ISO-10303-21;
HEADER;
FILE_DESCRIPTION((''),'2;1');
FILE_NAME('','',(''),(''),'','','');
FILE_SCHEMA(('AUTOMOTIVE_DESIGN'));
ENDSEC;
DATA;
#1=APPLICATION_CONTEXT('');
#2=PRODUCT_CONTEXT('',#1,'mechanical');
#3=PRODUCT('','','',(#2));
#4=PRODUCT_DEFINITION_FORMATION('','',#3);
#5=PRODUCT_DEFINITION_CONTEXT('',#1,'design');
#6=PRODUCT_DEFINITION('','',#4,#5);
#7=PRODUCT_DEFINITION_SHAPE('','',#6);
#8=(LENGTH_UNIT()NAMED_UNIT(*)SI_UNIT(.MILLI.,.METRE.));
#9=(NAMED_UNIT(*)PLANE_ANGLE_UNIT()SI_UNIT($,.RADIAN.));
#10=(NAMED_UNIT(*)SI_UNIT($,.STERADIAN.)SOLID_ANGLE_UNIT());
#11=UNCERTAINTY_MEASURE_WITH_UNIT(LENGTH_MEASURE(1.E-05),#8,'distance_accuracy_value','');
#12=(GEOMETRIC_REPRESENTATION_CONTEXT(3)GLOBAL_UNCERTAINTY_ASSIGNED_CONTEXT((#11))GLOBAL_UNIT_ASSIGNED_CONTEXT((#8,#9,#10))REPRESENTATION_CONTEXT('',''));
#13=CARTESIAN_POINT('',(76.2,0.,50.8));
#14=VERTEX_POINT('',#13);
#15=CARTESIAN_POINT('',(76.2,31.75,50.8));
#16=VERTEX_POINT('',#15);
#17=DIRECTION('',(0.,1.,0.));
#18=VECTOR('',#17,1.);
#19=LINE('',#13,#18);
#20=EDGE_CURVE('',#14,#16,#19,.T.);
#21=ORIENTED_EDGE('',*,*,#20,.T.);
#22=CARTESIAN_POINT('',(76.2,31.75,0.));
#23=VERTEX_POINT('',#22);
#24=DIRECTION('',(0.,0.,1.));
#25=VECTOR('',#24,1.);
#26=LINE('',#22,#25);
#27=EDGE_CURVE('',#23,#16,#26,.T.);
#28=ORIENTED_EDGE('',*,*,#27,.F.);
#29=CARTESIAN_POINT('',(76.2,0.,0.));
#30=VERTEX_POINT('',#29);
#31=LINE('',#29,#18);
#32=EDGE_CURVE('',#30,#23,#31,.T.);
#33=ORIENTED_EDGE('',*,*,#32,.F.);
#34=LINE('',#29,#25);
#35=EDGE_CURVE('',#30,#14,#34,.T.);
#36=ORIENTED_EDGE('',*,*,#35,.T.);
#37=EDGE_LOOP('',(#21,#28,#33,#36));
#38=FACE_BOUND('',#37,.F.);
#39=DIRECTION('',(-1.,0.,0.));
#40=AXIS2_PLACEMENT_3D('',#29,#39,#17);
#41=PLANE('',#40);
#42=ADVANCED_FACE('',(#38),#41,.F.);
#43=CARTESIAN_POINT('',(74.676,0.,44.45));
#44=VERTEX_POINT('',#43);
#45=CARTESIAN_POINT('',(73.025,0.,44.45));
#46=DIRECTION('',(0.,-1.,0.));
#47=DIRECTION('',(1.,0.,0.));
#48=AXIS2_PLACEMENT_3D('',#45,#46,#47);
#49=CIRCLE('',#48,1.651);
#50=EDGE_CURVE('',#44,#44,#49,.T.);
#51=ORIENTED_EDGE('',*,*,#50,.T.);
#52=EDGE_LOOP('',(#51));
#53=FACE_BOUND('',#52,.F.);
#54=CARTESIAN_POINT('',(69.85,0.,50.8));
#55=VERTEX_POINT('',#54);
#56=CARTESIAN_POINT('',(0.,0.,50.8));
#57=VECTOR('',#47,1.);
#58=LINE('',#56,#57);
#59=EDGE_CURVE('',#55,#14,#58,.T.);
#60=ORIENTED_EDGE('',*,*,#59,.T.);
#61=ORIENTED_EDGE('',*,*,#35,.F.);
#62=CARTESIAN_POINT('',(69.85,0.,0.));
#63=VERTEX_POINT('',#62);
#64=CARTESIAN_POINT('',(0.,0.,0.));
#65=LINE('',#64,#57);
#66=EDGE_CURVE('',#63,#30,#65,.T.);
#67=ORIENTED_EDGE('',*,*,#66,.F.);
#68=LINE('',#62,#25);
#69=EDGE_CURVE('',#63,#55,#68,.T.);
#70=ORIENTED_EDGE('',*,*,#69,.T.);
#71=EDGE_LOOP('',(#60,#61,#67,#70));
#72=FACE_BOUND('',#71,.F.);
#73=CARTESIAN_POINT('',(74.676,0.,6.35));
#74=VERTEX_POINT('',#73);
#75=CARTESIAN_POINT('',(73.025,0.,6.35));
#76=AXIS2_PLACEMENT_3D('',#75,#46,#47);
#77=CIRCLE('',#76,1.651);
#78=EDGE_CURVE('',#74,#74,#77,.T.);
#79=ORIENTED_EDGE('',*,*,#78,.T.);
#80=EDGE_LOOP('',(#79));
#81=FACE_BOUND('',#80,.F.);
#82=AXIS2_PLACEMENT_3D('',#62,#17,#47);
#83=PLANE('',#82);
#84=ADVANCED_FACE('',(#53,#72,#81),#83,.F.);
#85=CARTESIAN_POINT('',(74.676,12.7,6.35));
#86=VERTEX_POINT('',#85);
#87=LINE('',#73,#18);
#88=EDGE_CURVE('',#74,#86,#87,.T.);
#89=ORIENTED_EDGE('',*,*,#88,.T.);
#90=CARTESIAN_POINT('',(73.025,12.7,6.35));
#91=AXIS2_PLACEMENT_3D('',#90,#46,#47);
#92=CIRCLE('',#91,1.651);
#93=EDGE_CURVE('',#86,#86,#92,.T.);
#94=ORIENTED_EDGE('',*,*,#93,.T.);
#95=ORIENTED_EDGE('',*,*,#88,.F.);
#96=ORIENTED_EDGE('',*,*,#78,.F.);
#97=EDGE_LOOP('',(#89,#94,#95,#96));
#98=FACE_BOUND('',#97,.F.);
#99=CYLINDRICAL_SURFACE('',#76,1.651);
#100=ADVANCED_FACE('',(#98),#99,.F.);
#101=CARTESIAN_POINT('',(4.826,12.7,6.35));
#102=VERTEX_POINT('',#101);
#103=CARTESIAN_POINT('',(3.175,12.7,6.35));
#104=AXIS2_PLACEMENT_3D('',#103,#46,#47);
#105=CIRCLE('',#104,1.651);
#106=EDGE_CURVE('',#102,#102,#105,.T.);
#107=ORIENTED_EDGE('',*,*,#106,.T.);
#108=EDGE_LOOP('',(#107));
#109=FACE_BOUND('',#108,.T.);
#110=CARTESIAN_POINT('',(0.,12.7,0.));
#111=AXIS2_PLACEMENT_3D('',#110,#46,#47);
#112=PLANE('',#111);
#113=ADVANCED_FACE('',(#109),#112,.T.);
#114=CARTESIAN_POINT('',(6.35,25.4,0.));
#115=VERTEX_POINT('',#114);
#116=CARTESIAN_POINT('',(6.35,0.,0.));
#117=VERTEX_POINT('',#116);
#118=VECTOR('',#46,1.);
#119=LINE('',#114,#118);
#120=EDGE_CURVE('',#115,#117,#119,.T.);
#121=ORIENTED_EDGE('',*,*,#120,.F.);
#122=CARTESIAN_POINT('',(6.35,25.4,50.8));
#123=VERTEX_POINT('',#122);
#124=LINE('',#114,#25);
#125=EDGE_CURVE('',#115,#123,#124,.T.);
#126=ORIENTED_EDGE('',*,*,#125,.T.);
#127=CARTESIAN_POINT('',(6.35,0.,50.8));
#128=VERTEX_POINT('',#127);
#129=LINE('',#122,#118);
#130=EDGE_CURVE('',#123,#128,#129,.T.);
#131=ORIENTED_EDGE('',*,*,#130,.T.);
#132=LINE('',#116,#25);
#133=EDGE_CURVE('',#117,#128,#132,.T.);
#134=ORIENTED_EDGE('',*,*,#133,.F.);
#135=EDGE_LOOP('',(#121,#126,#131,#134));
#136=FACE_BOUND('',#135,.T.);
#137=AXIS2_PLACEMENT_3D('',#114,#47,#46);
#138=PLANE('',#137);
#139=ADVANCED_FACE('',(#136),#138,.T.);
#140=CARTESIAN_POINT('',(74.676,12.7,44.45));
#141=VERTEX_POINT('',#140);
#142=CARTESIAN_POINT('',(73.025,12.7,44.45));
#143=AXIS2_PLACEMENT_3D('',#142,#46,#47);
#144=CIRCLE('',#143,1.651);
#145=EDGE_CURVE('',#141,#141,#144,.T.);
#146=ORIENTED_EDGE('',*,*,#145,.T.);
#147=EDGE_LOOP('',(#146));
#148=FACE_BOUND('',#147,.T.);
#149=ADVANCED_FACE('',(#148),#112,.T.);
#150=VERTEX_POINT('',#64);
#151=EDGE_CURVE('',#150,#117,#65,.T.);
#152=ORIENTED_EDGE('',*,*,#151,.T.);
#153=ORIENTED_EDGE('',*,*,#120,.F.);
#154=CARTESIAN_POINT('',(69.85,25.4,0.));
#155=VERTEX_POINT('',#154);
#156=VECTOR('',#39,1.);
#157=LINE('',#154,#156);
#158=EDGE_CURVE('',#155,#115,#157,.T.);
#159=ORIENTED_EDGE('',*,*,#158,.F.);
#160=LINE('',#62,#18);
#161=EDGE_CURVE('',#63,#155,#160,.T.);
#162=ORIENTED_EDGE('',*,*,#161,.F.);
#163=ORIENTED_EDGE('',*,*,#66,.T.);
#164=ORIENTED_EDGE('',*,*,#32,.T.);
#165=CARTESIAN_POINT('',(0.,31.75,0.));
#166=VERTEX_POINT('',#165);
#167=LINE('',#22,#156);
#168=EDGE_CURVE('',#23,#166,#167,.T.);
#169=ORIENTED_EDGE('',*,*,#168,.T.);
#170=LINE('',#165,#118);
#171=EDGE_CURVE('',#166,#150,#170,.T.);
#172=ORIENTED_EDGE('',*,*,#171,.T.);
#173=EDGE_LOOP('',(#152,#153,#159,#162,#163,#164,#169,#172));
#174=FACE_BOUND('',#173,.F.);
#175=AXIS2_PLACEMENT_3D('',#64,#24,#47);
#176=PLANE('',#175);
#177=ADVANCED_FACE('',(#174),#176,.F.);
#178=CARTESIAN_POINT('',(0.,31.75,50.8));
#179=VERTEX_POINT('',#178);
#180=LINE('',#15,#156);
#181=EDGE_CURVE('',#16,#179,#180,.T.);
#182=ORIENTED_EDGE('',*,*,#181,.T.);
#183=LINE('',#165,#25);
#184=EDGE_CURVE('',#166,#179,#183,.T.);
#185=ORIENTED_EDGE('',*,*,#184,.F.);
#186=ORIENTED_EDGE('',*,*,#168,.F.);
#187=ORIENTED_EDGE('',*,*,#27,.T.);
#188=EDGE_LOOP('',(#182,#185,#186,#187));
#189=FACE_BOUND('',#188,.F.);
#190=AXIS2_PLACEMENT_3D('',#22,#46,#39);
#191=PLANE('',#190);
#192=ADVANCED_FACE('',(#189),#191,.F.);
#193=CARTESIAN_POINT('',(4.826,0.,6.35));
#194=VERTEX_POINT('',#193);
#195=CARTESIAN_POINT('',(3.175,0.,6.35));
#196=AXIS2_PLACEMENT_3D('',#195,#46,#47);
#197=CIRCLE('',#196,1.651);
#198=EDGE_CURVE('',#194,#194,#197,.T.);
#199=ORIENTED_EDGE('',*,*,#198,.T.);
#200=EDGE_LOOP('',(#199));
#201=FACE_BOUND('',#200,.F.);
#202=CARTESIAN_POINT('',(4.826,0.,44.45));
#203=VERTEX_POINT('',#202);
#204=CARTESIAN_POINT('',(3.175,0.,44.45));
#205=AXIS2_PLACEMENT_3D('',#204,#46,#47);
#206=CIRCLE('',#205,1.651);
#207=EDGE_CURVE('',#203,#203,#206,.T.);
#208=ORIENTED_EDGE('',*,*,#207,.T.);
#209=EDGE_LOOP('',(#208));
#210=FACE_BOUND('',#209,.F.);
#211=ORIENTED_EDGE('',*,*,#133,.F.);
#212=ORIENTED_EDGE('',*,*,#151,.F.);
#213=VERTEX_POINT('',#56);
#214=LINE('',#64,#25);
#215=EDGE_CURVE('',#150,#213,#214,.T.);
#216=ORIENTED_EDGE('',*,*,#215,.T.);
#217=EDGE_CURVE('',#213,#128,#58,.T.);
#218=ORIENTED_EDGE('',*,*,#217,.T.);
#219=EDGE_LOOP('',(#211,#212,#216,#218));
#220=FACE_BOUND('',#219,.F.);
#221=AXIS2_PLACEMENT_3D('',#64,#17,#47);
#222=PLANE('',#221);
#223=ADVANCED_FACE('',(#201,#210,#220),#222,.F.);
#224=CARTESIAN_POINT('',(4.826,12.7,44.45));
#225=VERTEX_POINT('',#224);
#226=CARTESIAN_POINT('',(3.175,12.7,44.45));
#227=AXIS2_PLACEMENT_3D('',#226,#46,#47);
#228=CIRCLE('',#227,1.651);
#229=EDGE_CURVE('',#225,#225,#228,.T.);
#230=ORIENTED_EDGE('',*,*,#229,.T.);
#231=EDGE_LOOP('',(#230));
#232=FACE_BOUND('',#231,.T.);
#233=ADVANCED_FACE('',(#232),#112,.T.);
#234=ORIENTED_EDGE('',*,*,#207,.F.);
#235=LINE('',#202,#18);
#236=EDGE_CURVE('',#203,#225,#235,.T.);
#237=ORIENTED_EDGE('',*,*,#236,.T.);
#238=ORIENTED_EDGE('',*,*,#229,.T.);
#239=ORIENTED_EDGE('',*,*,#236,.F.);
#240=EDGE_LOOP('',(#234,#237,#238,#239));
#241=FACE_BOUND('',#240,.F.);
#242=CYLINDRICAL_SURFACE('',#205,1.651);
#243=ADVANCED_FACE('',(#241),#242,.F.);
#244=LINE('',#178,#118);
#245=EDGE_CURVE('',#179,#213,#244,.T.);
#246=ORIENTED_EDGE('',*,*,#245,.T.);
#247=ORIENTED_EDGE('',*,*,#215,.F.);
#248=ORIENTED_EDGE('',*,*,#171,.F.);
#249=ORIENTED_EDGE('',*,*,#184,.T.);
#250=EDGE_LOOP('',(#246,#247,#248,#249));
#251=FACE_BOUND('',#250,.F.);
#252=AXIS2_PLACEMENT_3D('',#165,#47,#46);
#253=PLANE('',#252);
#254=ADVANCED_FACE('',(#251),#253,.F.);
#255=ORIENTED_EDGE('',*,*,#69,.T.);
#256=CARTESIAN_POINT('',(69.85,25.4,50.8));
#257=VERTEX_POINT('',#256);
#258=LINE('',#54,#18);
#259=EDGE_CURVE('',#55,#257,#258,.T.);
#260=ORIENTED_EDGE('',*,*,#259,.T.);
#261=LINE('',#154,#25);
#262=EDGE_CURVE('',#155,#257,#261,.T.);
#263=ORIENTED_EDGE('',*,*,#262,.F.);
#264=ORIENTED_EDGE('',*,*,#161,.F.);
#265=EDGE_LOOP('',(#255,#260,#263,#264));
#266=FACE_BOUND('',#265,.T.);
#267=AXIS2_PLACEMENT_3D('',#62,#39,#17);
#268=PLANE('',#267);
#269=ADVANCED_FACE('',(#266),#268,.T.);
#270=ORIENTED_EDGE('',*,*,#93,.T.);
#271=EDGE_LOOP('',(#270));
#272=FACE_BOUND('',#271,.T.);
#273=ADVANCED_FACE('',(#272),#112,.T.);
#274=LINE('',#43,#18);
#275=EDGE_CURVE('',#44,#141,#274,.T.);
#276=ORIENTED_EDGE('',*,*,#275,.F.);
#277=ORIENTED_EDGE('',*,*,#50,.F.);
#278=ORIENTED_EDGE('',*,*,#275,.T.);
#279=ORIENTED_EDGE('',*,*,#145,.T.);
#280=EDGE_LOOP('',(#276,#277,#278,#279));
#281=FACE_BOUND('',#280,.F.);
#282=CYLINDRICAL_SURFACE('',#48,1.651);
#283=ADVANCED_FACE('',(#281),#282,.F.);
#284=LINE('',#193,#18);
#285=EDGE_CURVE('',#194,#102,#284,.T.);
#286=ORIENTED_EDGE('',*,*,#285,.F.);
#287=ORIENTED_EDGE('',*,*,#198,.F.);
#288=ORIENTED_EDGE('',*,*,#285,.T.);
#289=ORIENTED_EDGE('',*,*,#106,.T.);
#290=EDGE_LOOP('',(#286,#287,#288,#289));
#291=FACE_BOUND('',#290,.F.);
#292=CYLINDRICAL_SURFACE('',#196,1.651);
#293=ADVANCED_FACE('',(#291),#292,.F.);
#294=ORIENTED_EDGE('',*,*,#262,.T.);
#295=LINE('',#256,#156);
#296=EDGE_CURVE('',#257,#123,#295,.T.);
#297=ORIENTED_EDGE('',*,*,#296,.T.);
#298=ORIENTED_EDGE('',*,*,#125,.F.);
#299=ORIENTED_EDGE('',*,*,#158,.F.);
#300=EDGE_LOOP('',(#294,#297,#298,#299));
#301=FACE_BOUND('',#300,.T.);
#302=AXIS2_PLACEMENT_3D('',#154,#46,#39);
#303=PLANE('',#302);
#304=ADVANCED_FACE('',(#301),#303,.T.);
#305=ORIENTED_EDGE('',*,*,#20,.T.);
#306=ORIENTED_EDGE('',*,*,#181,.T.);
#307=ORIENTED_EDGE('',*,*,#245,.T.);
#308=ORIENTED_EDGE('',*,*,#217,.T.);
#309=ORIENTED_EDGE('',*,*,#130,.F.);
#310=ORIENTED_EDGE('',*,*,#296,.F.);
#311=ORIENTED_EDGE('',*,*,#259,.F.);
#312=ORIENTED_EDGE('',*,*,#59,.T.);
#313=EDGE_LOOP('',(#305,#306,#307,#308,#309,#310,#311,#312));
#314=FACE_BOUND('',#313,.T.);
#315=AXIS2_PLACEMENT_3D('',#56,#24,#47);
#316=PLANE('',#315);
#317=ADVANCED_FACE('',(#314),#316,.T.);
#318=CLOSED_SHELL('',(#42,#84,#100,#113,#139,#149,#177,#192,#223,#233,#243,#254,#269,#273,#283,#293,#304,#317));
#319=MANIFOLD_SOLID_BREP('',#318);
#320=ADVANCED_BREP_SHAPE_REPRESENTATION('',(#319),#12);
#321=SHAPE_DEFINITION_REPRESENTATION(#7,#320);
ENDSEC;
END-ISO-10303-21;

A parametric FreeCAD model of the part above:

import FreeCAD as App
import Part
import Sketcher

V = App.Vector
Q = App.Units.Quantity


def add_polygon(sketch, points):
    """Adds a closed chain of lines whose ends are joined by coincident constraints."""
    first, n = sketch.GeometryCount, len(points)
    for a, b in zip(points, points[1:] + points[:1]):
        sketch.addGeometry(Part.LineSegment(App.Vector(*a, 0), App.Vector(*b, 0)), False)
    for i in range(n):
        sketch.addConstraint(Sketcher.Constraint("Coincident", first + i, 2, first + (i + 1) % n, 1))

doc = App.newDocument("Part")
body = doc.addObject("PartDesign::Body", "Body")

# Sketch on XY plane
sketch1 = body.newObject("Sketcher::SketchObject", "Sketch")
sketch1.AttachmentSupport = (doc.getObject("XY_Plane"), [""])
sketch1.MapMode = "FlatFace"
add_polygon(sketch1, [(0, 32), (0, 0), (6, 0), (6, 25), (70, 25), (70, 0), (76, 0), (76, 32)])  # lines 0-7
sketch1.addConstraint(Sketcher.Constraint("Vertical", 0))
sketch1.addConstraint(Sketcher.Constraint("Horizontal", 1))
sketch1.addConstraint(Sketcher.Constraint("Vertical", 2))
sketch1.addConstraint(Sketcher.Constraint("Horizontal", 3))
sketch1.addConstraint(Sketcher.Constraint("Vertical", 4))
sketch1.addConstraint(Sketcher.Constraint("Horizontal", 5))
sketch1.addConstraint(Sketcher.Constraint("Vertical", 6))
sketch1.addConstraint(Sketcher.Constraint("Horizontal", 7))
sketch1.addConstraint(Sketcher.Constraint("Coincident", 0, 2, -1, 1))
sketch1.addConstraint(Sketcher.Constraint("PointOnObject", 4, 2, -1))
sketch1.addConstraint(Sketcher.Constraint("Equal", 1, 5))
sketch1.addConstraint(Sketcher.Constraint("DistanceX", 3, 1, 3, 2, Q("2.5 in")))
sketch1.addConstraint(Sketcher.Constraint("DistanceX", 1, 1, 1, 2, Q("0.25 in")))
sketch1.addConstraint(Sketcher.Constraint("DistanceY", 0, 2, 0, 1, Q("1.25 in")))
sketch1.addConstraint(Sketcher.Constraint("DistanceY", 2, 1, 2, 2, Q("1 in")))
pad1 = body.newObject("PartDesign::Pad", "Pad")
pad1.Profile = sketch1
pad1.Length = Q("2 in")

# Sketch on XZ plane
sketch2 = body.newObject("Sketcher::SketchObject", "Sketch001")
sketch2.AttachmentSupport = (doc.getObject("XZ_Plane"), [""])
sketch2.MapMode = "FlatFace"
sketch2.addGeometry(Part.Circle(V(3.2, 44.5, 0), V(0, 0, 1), 1.7), False)
sketch2.addGeometry(Part.Circle(V(3.2, 6.3, 0), V(0, 0, 1), 1.7), False)
sketch2.addGeometry(Part.Circle(V(73, 6.3, 0), V(0, 0, 1), 1.7), False)
sketch2.addGeometry(Part.Circle(V(73, 44.5, 0), V(0, 0, 1), 1.7), False)
sketch2.addConstraint(Sketcher.Constraint("Equal", 0, 1))
sketch2.addConstraint(Sketcher.Constraint("Equal", 1, 2))
sketch2.addConstraint(Sketcher.Constraint("Equal", 2, 3))
sketch2.addConstraint(Sketcher.Constraint("Horizontal", 1, 3, 2, 3))
sketch2.addConstraint(Sketcher.Constraint("Horizontal", 0, 3, 3, 3))
sketch2.addConstraint(Sketcher.Constraint("Vertical", 0, 3, 1, 3))
sketch2.addConstraint(Sketcher.Constraint("Vertical", 2, 3, 3, 3))
sketch2.addConstraint(Sketcher.Constraint("Diameter", 0, Q("0.13 in")))
sketch2.addConstraint(Sketcher.Constraint("DistanceY", -1, 1, 1, 3, Q("0.25 in")))
sketch2.addConstraint(Sketcher.Constraint("DistanceX", -1, 1, 0, 3, Q("0.125 in")))
sketch2.addConstraint(Sketcher.Constraint("DistanceY", 1, 3, 0, 3, Q("1.5 in")))
sketch2.addConstraint(Sketcher.Constraint("DistanceX", 1, 3, 2, 3, Q("2.75 in")))
pocket1 = body.newObject("PartDesign::Pocket", "Pocket")
pocket1.Profile = sketch2
pocket1.Length = Q("0.5 in")

doc.recompute()
